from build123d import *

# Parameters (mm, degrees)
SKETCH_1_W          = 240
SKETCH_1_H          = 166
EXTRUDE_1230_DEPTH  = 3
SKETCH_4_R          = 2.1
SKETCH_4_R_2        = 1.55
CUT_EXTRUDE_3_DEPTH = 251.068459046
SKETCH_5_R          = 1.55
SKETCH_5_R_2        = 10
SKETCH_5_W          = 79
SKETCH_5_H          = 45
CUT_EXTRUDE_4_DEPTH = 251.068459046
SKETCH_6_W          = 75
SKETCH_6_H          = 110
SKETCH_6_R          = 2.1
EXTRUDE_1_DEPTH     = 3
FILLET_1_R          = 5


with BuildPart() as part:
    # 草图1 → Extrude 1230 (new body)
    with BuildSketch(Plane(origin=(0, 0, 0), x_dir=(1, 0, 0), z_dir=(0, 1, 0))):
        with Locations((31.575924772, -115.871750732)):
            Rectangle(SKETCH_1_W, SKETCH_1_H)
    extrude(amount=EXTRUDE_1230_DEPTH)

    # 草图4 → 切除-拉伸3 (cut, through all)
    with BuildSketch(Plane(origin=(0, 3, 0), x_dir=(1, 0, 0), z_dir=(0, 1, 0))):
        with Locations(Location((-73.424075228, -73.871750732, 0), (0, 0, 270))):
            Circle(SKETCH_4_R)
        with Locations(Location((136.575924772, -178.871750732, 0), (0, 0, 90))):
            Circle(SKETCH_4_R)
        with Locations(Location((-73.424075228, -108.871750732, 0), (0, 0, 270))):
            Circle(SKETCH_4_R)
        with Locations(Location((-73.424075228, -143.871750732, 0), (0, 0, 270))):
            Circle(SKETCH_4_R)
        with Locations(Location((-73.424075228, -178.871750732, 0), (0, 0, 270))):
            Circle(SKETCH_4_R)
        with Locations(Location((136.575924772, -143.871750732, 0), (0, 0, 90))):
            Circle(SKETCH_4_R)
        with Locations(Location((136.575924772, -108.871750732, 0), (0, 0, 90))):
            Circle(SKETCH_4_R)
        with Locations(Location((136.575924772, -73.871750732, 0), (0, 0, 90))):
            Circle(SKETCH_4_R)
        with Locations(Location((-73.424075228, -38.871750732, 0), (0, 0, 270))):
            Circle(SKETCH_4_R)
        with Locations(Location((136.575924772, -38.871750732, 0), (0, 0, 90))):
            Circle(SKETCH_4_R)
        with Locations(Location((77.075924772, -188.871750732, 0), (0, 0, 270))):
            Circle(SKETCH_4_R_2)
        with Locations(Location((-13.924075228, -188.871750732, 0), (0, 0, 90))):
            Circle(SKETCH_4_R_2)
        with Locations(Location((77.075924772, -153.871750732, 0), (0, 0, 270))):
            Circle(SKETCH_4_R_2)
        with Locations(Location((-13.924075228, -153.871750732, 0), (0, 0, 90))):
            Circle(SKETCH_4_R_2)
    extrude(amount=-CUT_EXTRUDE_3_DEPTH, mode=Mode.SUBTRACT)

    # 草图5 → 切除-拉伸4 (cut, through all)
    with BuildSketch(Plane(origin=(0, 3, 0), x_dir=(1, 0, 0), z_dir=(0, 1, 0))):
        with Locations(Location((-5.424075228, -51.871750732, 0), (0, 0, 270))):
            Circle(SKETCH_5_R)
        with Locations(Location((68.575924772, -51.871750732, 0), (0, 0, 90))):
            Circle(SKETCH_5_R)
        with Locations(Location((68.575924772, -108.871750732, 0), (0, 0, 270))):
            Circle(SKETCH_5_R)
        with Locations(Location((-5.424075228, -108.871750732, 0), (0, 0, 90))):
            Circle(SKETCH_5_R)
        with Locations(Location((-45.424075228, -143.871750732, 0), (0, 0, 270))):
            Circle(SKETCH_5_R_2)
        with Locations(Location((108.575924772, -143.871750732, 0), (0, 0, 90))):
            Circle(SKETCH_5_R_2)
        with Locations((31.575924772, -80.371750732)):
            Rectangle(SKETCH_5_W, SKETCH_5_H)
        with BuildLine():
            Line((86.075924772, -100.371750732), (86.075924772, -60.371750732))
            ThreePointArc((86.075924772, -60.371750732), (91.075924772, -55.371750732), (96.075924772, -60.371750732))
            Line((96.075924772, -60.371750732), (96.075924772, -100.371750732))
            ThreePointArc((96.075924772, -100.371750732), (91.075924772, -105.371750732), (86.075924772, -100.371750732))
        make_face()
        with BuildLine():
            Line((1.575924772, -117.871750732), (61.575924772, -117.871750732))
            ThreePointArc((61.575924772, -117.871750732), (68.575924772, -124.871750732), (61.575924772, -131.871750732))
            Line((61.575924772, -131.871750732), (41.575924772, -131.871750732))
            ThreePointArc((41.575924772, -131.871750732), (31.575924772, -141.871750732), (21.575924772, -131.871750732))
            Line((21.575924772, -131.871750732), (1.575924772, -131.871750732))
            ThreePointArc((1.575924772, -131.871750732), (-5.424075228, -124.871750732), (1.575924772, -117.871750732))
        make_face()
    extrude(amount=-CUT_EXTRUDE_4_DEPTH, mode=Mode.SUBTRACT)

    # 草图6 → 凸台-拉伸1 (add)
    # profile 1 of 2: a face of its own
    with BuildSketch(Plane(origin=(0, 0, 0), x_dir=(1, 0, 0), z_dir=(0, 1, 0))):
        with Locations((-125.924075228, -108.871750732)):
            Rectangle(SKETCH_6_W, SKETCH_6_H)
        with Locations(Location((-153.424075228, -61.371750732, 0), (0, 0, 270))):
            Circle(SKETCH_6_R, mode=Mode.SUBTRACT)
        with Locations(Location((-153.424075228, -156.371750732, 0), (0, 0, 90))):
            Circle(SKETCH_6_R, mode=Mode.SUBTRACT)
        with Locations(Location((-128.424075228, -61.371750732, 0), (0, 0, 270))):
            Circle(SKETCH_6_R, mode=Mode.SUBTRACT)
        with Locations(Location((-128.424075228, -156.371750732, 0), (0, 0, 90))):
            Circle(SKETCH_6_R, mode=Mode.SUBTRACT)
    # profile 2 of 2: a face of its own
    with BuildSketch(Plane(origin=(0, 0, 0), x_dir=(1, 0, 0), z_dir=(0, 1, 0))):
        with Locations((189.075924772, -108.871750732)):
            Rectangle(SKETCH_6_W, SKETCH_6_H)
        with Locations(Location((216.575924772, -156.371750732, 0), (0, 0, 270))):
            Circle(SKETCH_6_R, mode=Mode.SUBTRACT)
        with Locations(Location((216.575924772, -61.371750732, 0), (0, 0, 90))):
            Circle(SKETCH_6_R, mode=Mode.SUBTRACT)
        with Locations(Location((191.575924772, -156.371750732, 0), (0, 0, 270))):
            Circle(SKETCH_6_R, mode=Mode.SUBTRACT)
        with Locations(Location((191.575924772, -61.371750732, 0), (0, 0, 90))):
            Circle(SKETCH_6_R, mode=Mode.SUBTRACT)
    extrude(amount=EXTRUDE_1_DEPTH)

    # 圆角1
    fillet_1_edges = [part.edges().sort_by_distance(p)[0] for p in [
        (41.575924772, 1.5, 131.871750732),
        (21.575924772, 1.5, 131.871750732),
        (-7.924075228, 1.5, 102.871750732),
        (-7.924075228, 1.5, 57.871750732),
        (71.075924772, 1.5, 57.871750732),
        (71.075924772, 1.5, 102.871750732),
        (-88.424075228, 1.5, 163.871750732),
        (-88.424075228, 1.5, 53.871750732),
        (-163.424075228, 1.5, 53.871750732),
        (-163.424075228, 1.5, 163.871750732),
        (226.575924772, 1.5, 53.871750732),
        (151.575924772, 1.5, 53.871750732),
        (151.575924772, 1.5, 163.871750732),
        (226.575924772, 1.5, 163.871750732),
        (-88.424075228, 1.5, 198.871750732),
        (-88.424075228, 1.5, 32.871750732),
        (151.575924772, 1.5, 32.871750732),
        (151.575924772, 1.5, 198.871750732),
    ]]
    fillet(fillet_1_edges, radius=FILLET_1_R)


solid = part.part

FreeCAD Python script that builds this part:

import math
import FreeCAD as App
import Part
import Sketcher
from FreeCAD import Vector


def edges_at(feature, points):
    """Names of the edges that pass closest to the given points."""
    edges = feature.Shape.Edges
    near = lambda p: min(range(len(edges)), key=lambda i: edges[i].distToShape(Part.Vertex(*p))[0])
    return sorted({f"Edge{near(p) + 1}" for p in points})


def add_polygon(sketch, points):
    """Adds a closed chain of lines whose ends are joined by coincident constraints."""
    first, n = sketch.GeometryCount, len(points)
    for a, b in zip(points, points[1:] + points[:1]):
        sketch.addGeometry(Part.LineSegment(App.Vector(*a, 0), App.Vector(*b, 0)), False)
    for i in range(n):
        sketch.addConstraint(Sketcher.Constraint("Coincident", first + i, 2, first + (i + 1) % n, 1))

doc = App.newDocument("Part")
body = doc.addObject("PartDesign::Body", "Body")

# Sketch on XZ plane
sketch1 = doc.addObject("Sketcher::SketchObject", "Sketch")
body.addObject(sketch1)
sketch1.AttachmentSupport = (doc.XZ_Plane, [""])
sketch1.MapMode = "FlatFace"
add_polygon(sketch1, [(-88, 33), (-88, 199), (152, 199), (152, 33)])  # lines 0-3
sketch1.addConstraint([
    Sketcher.Constraint("Vertical", 0),
    Sketcher.Constraint("Horizontal", 1),
    Sketcher.Constraint("Vertical", 2),
    Sketcher.Constraint("Horizontal", 3),
    Sketcher.Constraint("DistanceX", 1, 1, 1, 2, 240.0),
    Sketcher.Constraint("DistanceY", 0, 1, 0, 2, 166.0),
    Sketcher.Constraint("DistanceY", -1, 1, 0, 2, 198.871751),
    Sketcher.Constraint("DistanceX", 0, 2, -1, 1, 88.424075),
])
pad1 = doc.addObject("PartDesign::Pad", "Pad")
body.addObject(pad1)
pad1.Profile = sketch1
pad1.Length = 3
pad1.Reversed = True

# Sketch on XZ plane
sketch2 = doc.addObject("Sketcher::SketchObject", "Sketch001")
body.addObject(sketch2)
sketch2.AttachmentSupport = (doc.XZ_Plane, [""])
sketch2.MapMode = "FlatFace"
sketch2.AttachmentOffset = App.Placement(Vector(0, 0, -3), App.Rotation())
sketch2.addGeometry([
    Part.Circle(Vector(-73.4, 73.9, 0), Vector(0, 0, 1), 2.1),  # 0
    Part.Circle(Vector(136.6, 178.9, 0), Vector(0, 0, 1), 2.1),  # 1
    Part.Circle(Vector(-73.4, 108.9, 0), Vector(0, 0, 1), 2.1),  # 2
    Part.Circle(Vector(-73.4, 143.9, 0), Vector(0, 0, 1), 2.1),  # 3
    Part.Circle(Vector(-73.4, 178.9, 0), Vector(0, 0, 1), 2.1),  # 4
    Part.Circle(Vector(136.6, 143.9, 0), Vector(0, 0, 1), 2.1),  # 5
    Part.Circle(Vector(136.6, 108.9, 0), Vector(0, 0, 1), 2.1),  # 6
    Part.Circle(Vector(136.6, 73.9, 0), Vector(0, 0, 1), 2.1),  # 7
    Part.Circle(Vector(-73.4, 38.9, 0), Vector(0, 0, 1), 2.1),  # 8
    Part.Circle(Vector(136.6, 38.9, 0), Vector(0, 0, 1), 2.1),  # 9
    Part.Circle(Vector(77.1, 188.9, 0), Vector(0, 0, 1), 1.6),  # 10
    Part.Circle(Vector(-13.9, 188.9, 0), Vector(0, 0, 1), 1.6),  # 11
    Part.Circle(Vector(77.1, 153.9, 0), Vector(0, 0, 1), 1.6),  # 12
    Part.Circle(Vector(-13.9, 153.9, 0), Vector(0, 0, 1), 1.6),  # 13
], False)
sketch2.addConstraint([
    Sketcher.Constraint("Equal", 0, 1),
    Sketcher.Constraint("Equal", 1, 2),
    Sketcher.Constraint("Equal", 2, 3),
    Sketcher.Constraint("Equal", 3, 4),
    Sketcher.Constraint("Equal", 4, 5),
    Sketcher.Constraint("Equal", 5, 6),
    Sketcher.Constraint("Equal", 6, 7),
    Sketcher.Constraint("Equal", 7, 8),
    Sketcher.Constraint("Equal", 8, 9),
    Sketcher.Constraint("Equal", 10, 11),
    Sketcher.Constraint("Equal", 11, 12),
    Sketcher.Constraint("Equal", 12, 13),
    Sketcher.Constraint("Horizontal", 1, 3, 4, 3),
    Sketcher.Constraint("Horizontal", 3, 3, 5, 3),
    Sketcher.Constraint("Horizontal", 2, 3, 6, 3),
    Sketcher.Constraint("Horizontal", 0, 3, 7, 3),
    Sketcher.Constraint("Horizontal", 8, 3, 9, 3),
    Sketcher.Constraint("Horizontal", 10, 3, 11, 3),
    Sketcher.Constraint("Horizontal", 12, 3, 13, 3),
    Sketcher.Constraint("Vertical", 0, 3, 2, 3),
    Sketcher.Constraint("Vertical", 2, 3, 3, 3),
    Sketcher.Constraint("Vertical", 3, 3, 4, 3),
    Sketcher.Constraint("Vertical", 1, 3, 5, 3),
    Sketcher.Constraint("Vertical", 5, 3, 6, 3),
    Sketcher.Constraint("Vertical", 6, 3, 7, 3),
    Sketcher.Constraint("Vertical", 4, 3, 8, 3),
    Sketcher.Constraint("Vertical", 7, 3, 9, 3),
    Sketcher.Constraint("Vertical", 10, 3, 12, 3),
    Sketcher.Constraint("Vertical", 11, 3, 13, 3),
    Sketcher.Constraint("Diameter", 0, 4.2),
    Sketcher.Constraint("Diameter", 10, 3.1),
    Sketcher.Constraint("DistanceX", 0, 3, 1, 3, 210.0),
    Sketcher.Constraint("DistanceY", 0, 3, 1, 3, 105.0),
    Sketcher.Constraint("DistanceY", 0, 3, 2, 3, 35.0),
    Sketcher.Constraint("DistanceY", 2, 3, 3, 3, 35.0),
    Sketcher.Constraint("DistanceY", 8, 3, 0, 3, 35.0),
    Sketcher.Constraint("DistanceY", 1, 3, 10, 3, 10.0),
    Sketcher.Constraint("DistanceX", 11, 3, 10, 3, 91.0),
    Sketcher.Constraint("DistanceY", 12, 3, 10, 3, 35.0),
    Sketcher.Constraint("DistanceX", 10, 3, 1, 3, 59.5),
    Sketcher.Constraint("DistanceY", -1, 1, 0, 3, 73.871751),
    Sketcher.Constraint("DistanceX", 0, 3, -1, 1, 73.424075),
])
pocket1 = doc.addObject("PartDesign::Pocket", "Pocket")
body.addObject(pocket1)
pocket1.Profile = sketch2
pocket1.Type = "ThroughAll"
pocket1.Reversed = True

# Sketch on XZ plane
sketch3 = doc.addObject("Sketcher::SketchObject", "Sketch002")
body.addObject(sketch3)
sketch3.AttachmentSupport = (doc.XZ_Plane, [""])
sketch3.MapMode = "FlatFace"
sketch3.AttachmentOffset = App.Placement(Vector(0, 0, -3), App.Rotation())
sketch3.addGeometry(Part.Circle(Vector(-5.4, 51.9, 0), Vector(0, 0, 1), 1.6), False)  # 0
sketch3.addGeometry(Part.Circle(Vector(68.6, 51.9, 0), Vector(0, 0, 1), 1.6), False)  # 1
sketch3.addGeometry(Part.Circle(Vector(68.6, 108.9, 0), Vector(0, 0, 1), 1.6), False)  # 2
sketch3.addGeometry(Part.Circle(Vector(-5.4, 108.9, 0), Vector(0, 0, 1), 1.6), False)  # 3
sketch3.addGeometry(Part.Circle(Vector(-45.4, 143.9, 0), Vector(0, 0, 1), 10), False)  # 4
sketch3.addGeometry(Part.Circle(Vector(108.6, 143.9, 0), Vector(0, 0, 1), 10), False)  # 5
add_polygon(sketch3, [(-7.9, 57.9), (-7.9, 102.9), (71.1, 102.9), (71.1, 57.9)])  # lines 6-9
sketch3.addGeometry(Part.LineSegment(Vector(86.1, 60.4, 0), Vector(86.1, 100.4, 0)), False)  # 10
sketch3.addGeometry(Part.ArcOfCircle(Part.Circle(Vector(91.1, 100.4, 0), Vector(0, 0, 1), 5), math.radians(0), math.radians(180)), False)  # 11
sketch3.addGeometry(Part.LineSegment(Vector(96.1, 100.4, 0), Vector(96.1, 60.4, 0)), False)  # 12
sketch3.addGeometry(Part.ArcOfCircle(Part.Circle(Vector(91.1, 60.4, 0), Vector(0, 0, 1), 5), math.radians(180), math.radians(360)), False)  # 13
sketch3.addGeometry(Part.LineSegment(Vector(61.6, 117.9, 0), Vector(1.6, 117.9, 0)), False)  # 14
sketch3.addGeometry(Part.ArcOfCircle(Part.Circle(Vector(1.6, 124.9, 0), Vector(0, 0, 1), 7), math.radians(90), math.radians(270)), False)  # 15
sketch3.addGeometry(Part.LineSegment(Vector(1.6, 131.9, 0), Vector(21.6, 131.9, 0)), False)  # 16
sketch3.addGeometry(Part.ArcOfCircle(Part.Circle(Vector(31.6, 131.9, 0), Vector(0, 0, 1), 10), math.radians(0), math.radians(180)), False)  # 17
sketch3.addGeometry(Part.LineSegment(Vector(41.6, 131.9, 0), Vector(61.6, 131.9, 0)), False)  # 18
sketch3.addGeometry(Part.ArcOfCircle(Part.Circle(Vector(61.6, 124.9, 0), Vector(0, 0, 1), 7), math.radians(-90), math.radians(90)), False)  # 19
sketch3.addConstraint([
    Sketcher.Constraint("Tangent", 10, 2, 11, 2),
    Sketcher.Constraint("Tangent", 11, 1, 12, 1),
    Sketcher.Constraint("Tangent", 12, 2, 13, 2),
    Sketcher.Constraint("Tangent", 13, 1, 10, 1),
    Sketcher.Constraint("Tangent", 14, 2, 15, 2),
    Sketcher.Constraint("Tangent", 15, 1, 16, 1),
    Sketcher.Constraint("Coincident", 16, 2, 17, 2),
    Sketcher.Constraint("Coincident", 17, 1, 18, 1),
    Sketcher.Constraint("Tangent", 18, 2, 19, 2),
    Sketcher.Constraint("Tangent", 19, 1, 14, 1),
    Sketcher.Constraint("Vertical", 6),
    Sketcher.Constraint("Horizontal", 7),
    Sketcher.Constraint("Vertical", 8),
    Sketcher.Constraint("Horizontal", 9),
    Sketcher.Constraint("Vertical", 10),
    Sketcher.Constraint("Vertical", 12),
    Sketcher.Constraint("Horizontal", 14),
    Sketcher.Constraint("Horizontal", 16),
    Sketcher.Constraint("Horizontal", 18),
    Sketcher.Constraint("Equal", 0, 1),
    Sketcher.Constraint("Equal", 1, 2),
    Sketcher.Constraint("Equal", 2, 3),
    Sketcher.Constraint("Equal", 4, 5),
    Sketcher.Constraint("Equal", 5, 17),
    Sketcher.Constraint("Equal", 15, 19),
    Sketcher.Constraint("Horizontal", 0, 3, 1, 3),
    Sketcher.Constraint("Horizontal", 2, 3, 3, 3),
    Sketcher.Constraint("Horizontal", 4, 3, 5, 3),
    Sketcher.Constraint("Horizontal", 17, 3, 15, 1),
    Sketcher.Constraint("Vertical", 1, 3, 2, 3),
    Sketcher.Constraint("Vertical", 0, 3, 3, 3),
    Sketcher.Constraint("Equal", 16, 18),
    Sketcher.Constraint("Diameter", 4, 20.0),
    Sketcher.Constraint("Radius", 11, 5.0),
    Sketcher.Constraint("Radius", 15, 7.0),
    Sketcher.Constraint("Diameter", 0, 3.1),
    Sketcher.Constraint("DistanceX", 7, 1, 7, 2, 79.0),
    Sketcher.Constraint("DistanceX", 14, 2, 14, 1, 60.0),
    Sketcher.Constraint("DistanceY", 6, 1, 6, 2, 45.0),
    Sketcher.Constraint("DistanceY", 10, 1, 10, 2, 40.0),
    Sketcher.Constraint("DistanceX", 0, 3, 1, 3, 74.0),
    Sketcher.Constraint("DistanceY", 1, 3, 2, 3, 57.0),
    Sketcher.Constraint("DistanceX", 4, 3, 3, 3, 40.0),
    Sketcher.Constraint("DistanceY", 3, 3, 4, 3, 35.0),
    Sketcher.Constraint("DistanceX", 2, 3, 5, 3, 40.0),
    Sketcher.Constraint("DistanceX", 3, 3, 15, 3, 7.0),
    Sketcher.Constraint("DistanceY", 3, 3, 15, 3, 16.0),
    Sketcher.Constraint("DistanceY", 6, 2, 3, 3, 6.0),
    Sketcher.Constraint("DistanceX", 7, 2, 11, 3, 20.0),
    Sketcher.Constraint("DistanceX", 2, 3, 11, 3, 22.5),
    Sketcher.Constraint("DistanceY", 11, 3, 2, 3, 8.5),
    Sketcher.Constraint("DistanceY", -1, 1, 0, 3, 51.871751),
    Sketcher.Constraint("DistanceX", 0, 3, -1, 1, 5.424075),
])
pocket2 = doc.addObject("PartDesign::Pocket", "Pocket001")
body.addObject(pocket2)
pocket2.Profile = sketch3
pocket2.Type = "ThroughAll"
pocket2.Reversed = True

# Sketch on XZ plane
sketch4 = doc.addObject("Sketcher::SketchObject", "Sketch003")
body.addObject(sketch4)
sketch4.AttachmentSupport = (doc.XZ_Plane, [""])
sketch4.MapMode = "FlatFace"
add_polygon(sketch4, [(-163.4, 53.9), (-163.4, 163.9), (-88.4, 163.9), (-88.4, 53.9)])  # lines 0-3
sketch4.addGeometry(Part.Circle(Vector(-153.4, 156.4, 0), Vector(0, 0, 1), 2.1), False)  # 4
sketch4.addGeometry(Part.Circle(Vector(-128.4, 156.4, 0), Vector(0, 0, 1), 2.1), False)  # 5
sketch4.addGeometry(Part.Circle(Vector(-153.4, 61.4, 0), Vector(0, 0, 1), 2.1), False)  # 6
sketch4.addGeometry(Part.Circle(Vector(-128.4, 61.4, 0), Vector(0, 0, 1), 2.1), False)  # 7
add_polygon(sketch4, [(151.6, 53.9), (151.6, 163.9), (226.6, 163.9), (226.6, 53.9)])  # lines 8-11
sketch4.addGeometry(Part.Circle(Vector(191.6, 156.4, 0), Vector(0, 0, 1), 2.1), False)  # 12
sketch4.addGeometry(Part.Circle(Vector(216.6, 156.4, 0), Vector(0, 0, 1), 2.1), False)  # 13
sketch4.addGeometry(Part.Circle(Vector(191.6, 61.4, 0), Vector(0, 0, 1), 2.1), False)  # 14
sketch4.addGeometry(Part.Circle(Vector(216.6, 61.4, 0), Vector(0, 0, 1), 2.1), False)  # 15
sketch4.addConstraint([
    Sketcher.Constraint("Vertical", 0),
    Sketcher.Constraint("Horizontal", 1),
    Sketcher.Constraint("Vertical", 2),
    Sketcher.Constraint("Horizontal", 3),
    Sketcher.Constraint("Vertical", 8),
    Sketcher.Constraint("Horizontal", 9),
    Sketcher.Constraint("Vertical", 10),
    Sketcher.Constraint("Horizontal", 11),
    Sketcher.Constraint("Equal", 4, 5),
    Sketcher.Constraint("Equal", 5, 6),
    Sketcher.Constraint("Equal", 6, 7),
    Sketcher.Constraint("Equal", 7, 12),
    Sketcher.Constraint("Equal", 12, 13),
    Sketcher.Constraint("Equal", 13, 14),
    Sketcher.Constraint("Equal", 14, 15),
    Sketcher.Constraint("Horizontal", 4, 3, 5, 3),
    Sketcher.Constraint("Horizontal", 6, 3, 7, 3),
    Sketcher.Constraint("Horizontal", 5, 3, 12, 3),
    Sketcher.Constraint("Horizontal", 12, 3, 13, 3),
    Sketcher.Constraint("Horizontal", 7, 3, 14, 3),
    Sketcher.Constraint("Horizontal", 14, 3, 15, 3),
    Sketcher.Constraint("Horizontal", 1, 2, 8, 2),
    Sketcher.Constraint("Horizontal", 3, 2, 10, 2),
    Sketcher.Constraint("Vertical", 4, 3, 6, 3),
    Sketcher.Constraint("Vertical", 5, 3, 7, 3),
    Sketcher.Constraint("Vertical", 12, 3, 14, 3),
    Sketcher.Constraint("Vertical", 13, 3, 15, 3),
    Sketcher.Constraint("Equal", 3, 9),
    Sketcher.Constraint("Diameter", 4, 4.2),
    Sketcher.Constraint("DistanceX", 1, 1, 1, 2, 75.0),
    Sketcher.Constraint("DistanceY", 0, 1, 0, 2, 110.0),
    Sketcher.Constraint("DistanceX", 4, 3, 5, 3, 25.0),
    Sketcher.Constraint("DistanceY", 6, 3, 4, 3, 95.0),
    Sketcher.Constraint("DistanceX", 5, 3, 12, 3, 320.0),
    Sketcher.Constraint("DistanceX", 12, 3, 13, 3, 25.0),
    Sketcher.Constraint("DistanceX", 0, 2, 4, 3, 10.0),
    Sketcher.Constraint("DistanceX", 8, 2, 12, 3, 40.0),
    Sketcher.Constraint("DistanceY", 4, 3, 0, 2, 7.5),
    Sketcher.Constraint("DistanceY", -1, 1, 4, 3, 156.371751),
    Sketcher.Constraint("DistanceX", 4, 3, -1, 1, 153.424075),
])
pad2 = doc.addObject("PartDesign::Pad", "Pad001")
body.addObject(pad2)
pad2.Profile = sketch4
pad2.Length = 3
pad2.Reversed = True
doc.recompute()

fillet = doc.addObject("PartDesign::Fillet", "Fillet")
body.addObject(fillet)
fillet.Base = (pad2, edges_at(pad2, [
    (41.576, 1.5, 131.872),
    (21.576, 1.5, 131.872),
    (-7.924, 1.5, 102.872),
    (-7.924, 1.5, 57.872),
    (71.076, 1.5, 57.872),
    (71.076, 1.5, 102.872),
    (-88.424, 1.5, 163.872),
    (-88.424, 1.5, 53.872),
    (-163.424, 1.5, 53.872),
    (-163.424, 1.5, 163.872),
    (226.576, 1.5, 53.872),
    (151.576, 1.5, 53.872),
    (151.576, 1.5, 163.872),
    (226.576, 1.5, 163.872),
    (-88.424, 1.5, 198.872),
    (-88.424, 1.5, 32.872),
    (151.576, 1.5, 32.872),
    (151.576, 1.5, 198.872),
]))
fillet.Radius = 5

doc.recompute()
